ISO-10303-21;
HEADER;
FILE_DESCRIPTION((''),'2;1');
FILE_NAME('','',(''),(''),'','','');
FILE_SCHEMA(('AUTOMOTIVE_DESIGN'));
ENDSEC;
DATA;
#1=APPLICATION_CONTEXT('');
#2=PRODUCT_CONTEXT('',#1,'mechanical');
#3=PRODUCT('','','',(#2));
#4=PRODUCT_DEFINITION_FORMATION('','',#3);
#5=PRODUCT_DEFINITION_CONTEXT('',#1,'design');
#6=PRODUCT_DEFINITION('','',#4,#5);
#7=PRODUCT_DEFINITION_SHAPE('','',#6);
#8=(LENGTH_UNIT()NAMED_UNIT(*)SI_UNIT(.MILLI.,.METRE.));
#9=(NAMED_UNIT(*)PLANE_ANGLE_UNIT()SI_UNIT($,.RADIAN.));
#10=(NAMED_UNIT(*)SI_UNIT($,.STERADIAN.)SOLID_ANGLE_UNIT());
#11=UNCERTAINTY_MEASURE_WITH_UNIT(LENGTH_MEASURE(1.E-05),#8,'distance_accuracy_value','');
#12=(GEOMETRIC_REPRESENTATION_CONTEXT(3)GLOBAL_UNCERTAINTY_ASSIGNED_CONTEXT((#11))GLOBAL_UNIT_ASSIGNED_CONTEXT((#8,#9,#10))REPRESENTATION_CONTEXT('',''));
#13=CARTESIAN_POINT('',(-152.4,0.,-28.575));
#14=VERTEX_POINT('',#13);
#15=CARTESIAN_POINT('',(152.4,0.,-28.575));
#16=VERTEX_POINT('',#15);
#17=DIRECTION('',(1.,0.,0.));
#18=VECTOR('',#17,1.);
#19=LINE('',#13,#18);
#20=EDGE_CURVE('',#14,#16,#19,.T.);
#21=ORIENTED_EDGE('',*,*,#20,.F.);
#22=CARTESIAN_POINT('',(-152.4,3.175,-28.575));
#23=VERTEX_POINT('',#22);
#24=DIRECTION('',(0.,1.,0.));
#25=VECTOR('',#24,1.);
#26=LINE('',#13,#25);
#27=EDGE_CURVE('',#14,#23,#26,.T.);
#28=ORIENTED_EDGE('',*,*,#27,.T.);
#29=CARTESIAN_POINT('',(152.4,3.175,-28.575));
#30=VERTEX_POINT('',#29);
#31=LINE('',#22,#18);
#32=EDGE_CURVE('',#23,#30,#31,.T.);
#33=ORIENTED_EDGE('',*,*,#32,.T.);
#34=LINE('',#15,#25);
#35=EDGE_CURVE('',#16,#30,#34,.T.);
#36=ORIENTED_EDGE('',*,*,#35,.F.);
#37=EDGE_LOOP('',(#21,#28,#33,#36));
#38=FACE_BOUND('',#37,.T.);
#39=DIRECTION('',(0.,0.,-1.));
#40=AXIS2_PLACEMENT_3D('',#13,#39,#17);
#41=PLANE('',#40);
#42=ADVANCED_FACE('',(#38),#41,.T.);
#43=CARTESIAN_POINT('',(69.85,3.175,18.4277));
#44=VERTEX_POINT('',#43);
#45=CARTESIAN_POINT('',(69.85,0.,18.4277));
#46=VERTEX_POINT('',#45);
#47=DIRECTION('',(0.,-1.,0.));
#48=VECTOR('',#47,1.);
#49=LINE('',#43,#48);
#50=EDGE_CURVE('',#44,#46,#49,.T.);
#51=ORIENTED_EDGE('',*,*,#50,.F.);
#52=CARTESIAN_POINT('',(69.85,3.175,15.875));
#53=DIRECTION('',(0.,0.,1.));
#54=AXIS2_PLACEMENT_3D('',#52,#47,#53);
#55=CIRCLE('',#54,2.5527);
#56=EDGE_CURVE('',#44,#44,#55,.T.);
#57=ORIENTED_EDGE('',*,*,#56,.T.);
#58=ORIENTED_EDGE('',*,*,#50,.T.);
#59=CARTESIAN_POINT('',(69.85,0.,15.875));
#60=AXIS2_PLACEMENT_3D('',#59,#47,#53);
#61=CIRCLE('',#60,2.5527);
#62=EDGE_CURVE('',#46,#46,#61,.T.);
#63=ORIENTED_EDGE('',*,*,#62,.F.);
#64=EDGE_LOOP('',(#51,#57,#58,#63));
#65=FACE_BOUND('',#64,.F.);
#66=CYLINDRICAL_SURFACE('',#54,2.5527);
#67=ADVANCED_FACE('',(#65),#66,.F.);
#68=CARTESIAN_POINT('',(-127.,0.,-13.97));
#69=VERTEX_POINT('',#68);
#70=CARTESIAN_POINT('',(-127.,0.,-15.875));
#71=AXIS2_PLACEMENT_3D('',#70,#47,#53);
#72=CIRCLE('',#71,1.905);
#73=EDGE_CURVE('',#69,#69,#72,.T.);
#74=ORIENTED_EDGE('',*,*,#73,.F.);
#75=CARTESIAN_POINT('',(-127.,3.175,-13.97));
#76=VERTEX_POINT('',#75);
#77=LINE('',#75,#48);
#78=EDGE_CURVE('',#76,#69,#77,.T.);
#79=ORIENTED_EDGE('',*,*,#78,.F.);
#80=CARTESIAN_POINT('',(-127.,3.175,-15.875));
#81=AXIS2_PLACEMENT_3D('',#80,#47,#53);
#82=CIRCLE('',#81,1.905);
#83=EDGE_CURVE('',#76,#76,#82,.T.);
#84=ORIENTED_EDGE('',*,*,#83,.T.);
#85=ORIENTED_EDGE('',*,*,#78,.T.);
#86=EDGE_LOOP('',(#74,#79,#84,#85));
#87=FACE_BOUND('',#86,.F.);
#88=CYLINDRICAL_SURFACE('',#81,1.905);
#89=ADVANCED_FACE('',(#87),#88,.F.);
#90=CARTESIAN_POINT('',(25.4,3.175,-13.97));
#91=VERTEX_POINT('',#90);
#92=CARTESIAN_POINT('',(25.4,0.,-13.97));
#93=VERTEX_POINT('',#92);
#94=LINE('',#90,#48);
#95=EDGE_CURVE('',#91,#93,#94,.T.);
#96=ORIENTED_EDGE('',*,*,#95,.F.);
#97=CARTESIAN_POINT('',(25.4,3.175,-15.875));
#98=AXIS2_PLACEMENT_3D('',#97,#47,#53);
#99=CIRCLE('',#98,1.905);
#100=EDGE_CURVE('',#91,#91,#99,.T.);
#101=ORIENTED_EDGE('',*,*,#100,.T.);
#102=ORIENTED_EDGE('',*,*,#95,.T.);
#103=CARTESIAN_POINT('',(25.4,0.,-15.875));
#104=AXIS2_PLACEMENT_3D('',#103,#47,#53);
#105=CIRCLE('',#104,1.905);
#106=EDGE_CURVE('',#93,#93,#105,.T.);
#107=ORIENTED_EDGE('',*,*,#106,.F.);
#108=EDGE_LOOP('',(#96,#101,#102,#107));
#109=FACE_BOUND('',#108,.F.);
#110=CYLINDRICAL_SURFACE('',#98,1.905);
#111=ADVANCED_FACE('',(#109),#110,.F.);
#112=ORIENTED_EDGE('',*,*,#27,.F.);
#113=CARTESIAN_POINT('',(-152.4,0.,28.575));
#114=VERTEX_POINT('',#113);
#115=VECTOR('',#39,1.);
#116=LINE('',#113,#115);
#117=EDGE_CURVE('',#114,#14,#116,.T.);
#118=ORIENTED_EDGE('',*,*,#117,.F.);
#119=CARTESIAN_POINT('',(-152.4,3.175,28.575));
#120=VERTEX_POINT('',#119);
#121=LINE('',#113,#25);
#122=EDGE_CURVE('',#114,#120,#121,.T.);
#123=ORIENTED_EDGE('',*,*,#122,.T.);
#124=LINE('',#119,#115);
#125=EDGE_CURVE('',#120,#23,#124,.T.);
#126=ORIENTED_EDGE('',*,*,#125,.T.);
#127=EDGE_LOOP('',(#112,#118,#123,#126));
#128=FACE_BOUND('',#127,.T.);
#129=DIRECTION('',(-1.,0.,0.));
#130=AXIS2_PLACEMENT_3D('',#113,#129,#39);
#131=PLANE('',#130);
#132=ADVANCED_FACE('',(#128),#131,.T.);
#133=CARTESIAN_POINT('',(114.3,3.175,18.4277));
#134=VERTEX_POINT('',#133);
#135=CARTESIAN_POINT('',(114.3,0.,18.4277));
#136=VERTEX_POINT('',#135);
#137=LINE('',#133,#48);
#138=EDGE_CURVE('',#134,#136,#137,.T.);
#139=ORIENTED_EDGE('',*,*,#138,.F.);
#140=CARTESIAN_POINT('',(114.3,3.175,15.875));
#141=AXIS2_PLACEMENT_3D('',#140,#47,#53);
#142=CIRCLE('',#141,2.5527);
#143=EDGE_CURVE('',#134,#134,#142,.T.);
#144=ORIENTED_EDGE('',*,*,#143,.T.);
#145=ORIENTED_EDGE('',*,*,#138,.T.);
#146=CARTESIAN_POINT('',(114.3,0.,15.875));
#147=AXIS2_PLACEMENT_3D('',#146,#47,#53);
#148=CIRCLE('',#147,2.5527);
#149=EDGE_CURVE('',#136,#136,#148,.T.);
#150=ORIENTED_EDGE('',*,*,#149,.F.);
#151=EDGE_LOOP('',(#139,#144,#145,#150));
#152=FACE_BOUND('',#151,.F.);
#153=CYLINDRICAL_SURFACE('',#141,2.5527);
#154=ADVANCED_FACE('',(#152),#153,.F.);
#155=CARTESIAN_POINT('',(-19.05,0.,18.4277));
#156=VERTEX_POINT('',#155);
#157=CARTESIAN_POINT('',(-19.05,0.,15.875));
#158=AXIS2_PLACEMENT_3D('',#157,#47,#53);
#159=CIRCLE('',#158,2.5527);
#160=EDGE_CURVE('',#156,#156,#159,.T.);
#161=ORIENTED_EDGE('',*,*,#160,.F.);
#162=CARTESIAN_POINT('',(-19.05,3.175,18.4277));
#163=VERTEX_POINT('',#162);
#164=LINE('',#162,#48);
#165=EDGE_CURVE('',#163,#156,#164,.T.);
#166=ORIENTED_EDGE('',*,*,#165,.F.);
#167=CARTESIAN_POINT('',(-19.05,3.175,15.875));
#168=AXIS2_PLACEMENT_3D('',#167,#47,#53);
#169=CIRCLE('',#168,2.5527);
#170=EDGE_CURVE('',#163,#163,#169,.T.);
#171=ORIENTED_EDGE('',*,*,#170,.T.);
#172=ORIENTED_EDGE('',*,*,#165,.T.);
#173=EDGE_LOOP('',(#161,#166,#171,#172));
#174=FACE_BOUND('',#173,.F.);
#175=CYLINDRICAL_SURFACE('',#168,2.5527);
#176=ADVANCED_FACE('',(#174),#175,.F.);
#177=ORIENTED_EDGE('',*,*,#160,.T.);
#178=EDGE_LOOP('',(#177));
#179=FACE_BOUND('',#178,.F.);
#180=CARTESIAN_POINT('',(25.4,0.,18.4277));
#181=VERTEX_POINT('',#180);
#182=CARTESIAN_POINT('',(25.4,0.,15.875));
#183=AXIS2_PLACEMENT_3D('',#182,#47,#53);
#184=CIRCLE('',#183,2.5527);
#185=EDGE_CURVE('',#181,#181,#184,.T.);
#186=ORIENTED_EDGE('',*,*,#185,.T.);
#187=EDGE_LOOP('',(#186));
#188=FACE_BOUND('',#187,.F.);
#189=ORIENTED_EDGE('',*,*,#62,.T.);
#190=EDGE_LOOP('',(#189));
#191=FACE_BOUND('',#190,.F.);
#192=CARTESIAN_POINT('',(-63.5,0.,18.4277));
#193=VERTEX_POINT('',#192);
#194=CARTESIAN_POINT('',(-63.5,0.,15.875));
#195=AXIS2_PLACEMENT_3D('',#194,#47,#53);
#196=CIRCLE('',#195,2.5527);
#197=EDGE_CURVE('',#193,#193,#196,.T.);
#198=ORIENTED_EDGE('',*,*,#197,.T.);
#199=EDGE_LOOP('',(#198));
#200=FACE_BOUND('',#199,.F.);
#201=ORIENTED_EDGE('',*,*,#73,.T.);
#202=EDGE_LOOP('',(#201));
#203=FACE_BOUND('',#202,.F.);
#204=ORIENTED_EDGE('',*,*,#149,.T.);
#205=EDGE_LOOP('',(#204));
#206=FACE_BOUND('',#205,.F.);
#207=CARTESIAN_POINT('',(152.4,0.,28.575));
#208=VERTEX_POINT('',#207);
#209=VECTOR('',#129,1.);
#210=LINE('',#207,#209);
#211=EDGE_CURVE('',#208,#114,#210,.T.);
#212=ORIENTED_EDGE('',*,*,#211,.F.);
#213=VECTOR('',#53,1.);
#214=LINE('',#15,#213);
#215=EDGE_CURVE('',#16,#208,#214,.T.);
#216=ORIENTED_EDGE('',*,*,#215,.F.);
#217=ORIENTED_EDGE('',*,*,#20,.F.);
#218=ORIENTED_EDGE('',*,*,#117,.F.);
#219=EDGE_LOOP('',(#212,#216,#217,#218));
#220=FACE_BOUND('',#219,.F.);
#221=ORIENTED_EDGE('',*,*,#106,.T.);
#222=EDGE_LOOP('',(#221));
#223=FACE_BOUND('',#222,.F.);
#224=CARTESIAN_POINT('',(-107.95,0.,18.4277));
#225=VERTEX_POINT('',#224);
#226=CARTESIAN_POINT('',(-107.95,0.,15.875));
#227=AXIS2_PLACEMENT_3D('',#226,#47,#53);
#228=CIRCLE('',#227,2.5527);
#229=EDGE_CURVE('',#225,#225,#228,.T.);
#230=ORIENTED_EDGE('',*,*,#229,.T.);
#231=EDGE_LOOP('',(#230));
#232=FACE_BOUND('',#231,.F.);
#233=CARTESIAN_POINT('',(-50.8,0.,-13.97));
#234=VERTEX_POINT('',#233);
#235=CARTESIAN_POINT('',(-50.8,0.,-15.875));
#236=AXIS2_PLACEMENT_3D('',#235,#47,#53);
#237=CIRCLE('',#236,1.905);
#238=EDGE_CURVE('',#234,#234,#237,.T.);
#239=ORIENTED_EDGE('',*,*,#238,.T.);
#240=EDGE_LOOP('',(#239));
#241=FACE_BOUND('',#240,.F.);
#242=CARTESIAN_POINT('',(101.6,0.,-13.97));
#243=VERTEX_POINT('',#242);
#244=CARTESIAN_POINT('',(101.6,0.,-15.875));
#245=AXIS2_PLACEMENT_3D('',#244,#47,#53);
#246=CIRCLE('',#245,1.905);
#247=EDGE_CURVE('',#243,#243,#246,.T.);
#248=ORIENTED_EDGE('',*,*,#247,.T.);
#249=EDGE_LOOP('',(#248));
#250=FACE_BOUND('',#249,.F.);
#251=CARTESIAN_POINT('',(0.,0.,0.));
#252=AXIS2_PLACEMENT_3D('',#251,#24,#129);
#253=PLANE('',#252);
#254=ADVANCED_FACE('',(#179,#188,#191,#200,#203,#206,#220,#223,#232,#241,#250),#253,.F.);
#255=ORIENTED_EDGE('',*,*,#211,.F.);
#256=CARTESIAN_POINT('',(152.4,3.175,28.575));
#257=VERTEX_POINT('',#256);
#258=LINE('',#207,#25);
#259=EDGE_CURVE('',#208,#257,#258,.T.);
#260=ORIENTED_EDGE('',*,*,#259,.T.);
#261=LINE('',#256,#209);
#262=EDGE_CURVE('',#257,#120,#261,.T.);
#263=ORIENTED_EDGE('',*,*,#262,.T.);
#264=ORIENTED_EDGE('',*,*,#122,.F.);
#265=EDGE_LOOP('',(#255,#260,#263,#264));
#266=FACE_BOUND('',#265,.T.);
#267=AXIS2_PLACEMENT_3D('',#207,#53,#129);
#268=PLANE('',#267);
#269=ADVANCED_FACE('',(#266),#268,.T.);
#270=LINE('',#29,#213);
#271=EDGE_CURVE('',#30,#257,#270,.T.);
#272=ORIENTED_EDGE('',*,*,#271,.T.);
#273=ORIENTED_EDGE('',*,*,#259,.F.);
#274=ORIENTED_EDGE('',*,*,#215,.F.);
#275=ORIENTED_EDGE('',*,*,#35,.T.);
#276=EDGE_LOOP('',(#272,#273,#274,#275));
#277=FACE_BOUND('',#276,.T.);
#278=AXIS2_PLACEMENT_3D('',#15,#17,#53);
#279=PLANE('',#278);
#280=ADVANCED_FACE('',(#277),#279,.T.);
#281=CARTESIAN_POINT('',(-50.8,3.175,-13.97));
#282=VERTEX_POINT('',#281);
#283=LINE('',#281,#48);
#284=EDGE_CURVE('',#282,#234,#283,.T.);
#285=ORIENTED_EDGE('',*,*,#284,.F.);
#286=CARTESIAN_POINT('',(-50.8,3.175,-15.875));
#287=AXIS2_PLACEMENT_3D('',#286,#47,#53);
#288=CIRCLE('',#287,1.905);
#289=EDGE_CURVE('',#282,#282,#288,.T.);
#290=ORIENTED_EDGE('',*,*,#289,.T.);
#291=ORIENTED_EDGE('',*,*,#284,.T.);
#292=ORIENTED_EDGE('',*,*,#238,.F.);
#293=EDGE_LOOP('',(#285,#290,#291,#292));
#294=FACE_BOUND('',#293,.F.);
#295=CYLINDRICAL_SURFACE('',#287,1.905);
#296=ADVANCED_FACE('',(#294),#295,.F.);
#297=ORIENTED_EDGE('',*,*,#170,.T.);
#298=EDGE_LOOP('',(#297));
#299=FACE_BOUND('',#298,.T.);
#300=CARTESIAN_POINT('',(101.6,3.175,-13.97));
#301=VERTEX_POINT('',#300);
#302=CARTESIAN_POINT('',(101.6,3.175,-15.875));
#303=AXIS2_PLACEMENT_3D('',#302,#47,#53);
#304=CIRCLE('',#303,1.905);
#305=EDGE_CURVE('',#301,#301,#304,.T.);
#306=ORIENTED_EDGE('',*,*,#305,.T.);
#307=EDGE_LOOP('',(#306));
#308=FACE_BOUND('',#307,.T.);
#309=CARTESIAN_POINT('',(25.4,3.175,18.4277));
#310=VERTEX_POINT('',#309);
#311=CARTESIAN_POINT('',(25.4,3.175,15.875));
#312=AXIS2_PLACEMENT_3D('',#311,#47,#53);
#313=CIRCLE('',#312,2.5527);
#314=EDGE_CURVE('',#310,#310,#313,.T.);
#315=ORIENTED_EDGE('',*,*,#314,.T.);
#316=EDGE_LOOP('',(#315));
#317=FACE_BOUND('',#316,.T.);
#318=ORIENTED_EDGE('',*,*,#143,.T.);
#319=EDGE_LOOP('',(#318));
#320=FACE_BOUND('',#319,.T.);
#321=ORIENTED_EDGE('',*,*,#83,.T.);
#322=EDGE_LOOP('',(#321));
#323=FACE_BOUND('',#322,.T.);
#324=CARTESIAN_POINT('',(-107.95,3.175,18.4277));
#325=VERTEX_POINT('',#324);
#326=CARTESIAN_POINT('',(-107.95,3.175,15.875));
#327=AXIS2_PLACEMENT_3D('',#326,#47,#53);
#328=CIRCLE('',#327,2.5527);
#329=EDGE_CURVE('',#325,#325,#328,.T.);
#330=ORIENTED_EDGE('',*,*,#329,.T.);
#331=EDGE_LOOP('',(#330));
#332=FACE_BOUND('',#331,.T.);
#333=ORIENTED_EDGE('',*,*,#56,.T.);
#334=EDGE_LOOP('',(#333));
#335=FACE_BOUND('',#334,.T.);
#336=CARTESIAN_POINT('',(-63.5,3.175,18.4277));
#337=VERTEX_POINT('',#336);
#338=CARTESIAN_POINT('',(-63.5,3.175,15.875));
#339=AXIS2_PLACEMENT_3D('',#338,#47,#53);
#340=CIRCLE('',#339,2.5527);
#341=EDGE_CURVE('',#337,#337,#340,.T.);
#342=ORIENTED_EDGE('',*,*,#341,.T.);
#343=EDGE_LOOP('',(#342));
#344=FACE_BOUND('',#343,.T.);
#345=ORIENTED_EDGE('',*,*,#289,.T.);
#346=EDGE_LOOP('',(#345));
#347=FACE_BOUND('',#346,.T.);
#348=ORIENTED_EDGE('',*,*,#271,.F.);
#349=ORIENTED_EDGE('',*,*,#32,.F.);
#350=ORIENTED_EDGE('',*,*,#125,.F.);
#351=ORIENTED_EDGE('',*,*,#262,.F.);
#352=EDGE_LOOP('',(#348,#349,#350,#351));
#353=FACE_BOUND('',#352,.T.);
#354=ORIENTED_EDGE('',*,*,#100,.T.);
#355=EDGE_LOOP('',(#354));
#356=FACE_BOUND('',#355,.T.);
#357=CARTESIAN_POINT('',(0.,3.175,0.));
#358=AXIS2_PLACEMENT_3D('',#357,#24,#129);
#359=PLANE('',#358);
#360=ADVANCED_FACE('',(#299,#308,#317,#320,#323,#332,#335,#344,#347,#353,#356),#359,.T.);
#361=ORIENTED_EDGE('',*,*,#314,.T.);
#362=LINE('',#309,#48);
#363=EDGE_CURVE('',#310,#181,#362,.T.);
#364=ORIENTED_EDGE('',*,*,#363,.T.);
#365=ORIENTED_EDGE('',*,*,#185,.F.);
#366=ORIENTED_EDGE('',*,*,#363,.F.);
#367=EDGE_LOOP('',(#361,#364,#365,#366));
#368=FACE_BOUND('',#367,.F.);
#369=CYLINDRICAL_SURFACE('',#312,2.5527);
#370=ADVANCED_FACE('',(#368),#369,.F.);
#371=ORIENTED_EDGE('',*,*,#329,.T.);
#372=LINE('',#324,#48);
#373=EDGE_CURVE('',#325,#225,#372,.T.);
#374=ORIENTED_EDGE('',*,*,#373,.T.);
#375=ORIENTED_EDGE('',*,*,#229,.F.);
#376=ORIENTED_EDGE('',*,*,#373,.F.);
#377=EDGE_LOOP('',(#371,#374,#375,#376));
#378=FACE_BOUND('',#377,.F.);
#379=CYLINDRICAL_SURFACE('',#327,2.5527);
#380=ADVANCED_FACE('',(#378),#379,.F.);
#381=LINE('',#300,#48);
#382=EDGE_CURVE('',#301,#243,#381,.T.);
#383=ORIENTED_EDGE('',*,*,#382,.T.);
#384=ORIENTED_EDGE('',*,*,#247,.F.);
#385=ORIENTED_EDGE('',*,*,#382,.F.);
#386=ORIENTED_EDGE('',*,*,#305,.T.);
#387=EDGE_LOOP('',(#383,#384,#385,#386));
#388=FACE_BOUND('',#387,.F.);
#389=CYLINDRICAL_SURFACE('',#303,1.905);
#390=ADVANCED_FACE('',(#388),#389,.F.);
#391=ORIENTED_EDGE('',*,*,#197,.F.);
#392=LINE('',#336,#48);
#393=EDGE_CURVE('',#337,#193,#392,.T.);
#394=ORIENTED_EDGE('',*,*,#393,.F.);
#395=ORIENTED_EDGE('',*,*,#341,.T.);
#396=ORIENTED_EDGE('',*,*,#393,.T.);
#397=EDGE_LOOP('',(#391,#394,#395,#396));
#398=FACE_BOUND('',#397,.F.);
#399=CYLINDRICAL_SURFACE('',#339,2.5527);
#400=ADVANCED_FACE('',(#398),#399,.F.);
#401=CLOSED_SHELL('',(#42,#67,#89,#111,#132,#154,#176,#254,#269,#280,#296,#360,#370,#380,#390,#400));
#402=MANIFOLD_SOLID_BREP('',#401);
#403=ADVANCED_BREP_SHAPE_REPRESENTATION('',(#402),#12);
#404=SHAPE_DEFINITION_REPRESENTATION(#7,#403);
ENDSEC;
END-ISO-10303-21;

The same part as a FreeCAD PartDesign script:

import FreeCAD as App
import Part
import Sketcher

V = App.Vector
Q = App.Units.Quantity


def add_polygon(sketch, points):
    """Adds a closed chain of lines whose ends are joined by coincident constraints."""
    first, n = sketch.GeometryCount, len(points)
    for a, b in zip(points, points[1:] + points[:1]):
        sketch.addGeometry(Part.LineSegment(App.Vector(*a, 0), App.Vector(*b, 0)), False)
    for i in range(n):
        sketch.addConstraint(Sketcher.Constraint("Coincident", first + i, 2, first + (i + 1) % n, 1))

doc = App.newDocument("Part")
body = doc.addObject("PartDesign::Body", "Body")

sketch1 = body.newObject("Sketcher::SketchObject", "Sketch")
sketch1.AttachmentSupport = (doc.getObject("XZ_Plane"), [""])
sketch1.MapMode = "FlatFace"
add_polygon(sketch1, [(-152, 29), (152, 29), (152, -29), (-152, -29)])
sketch1.addConstraint([
    Sketcher.Constraint("Horizontal", 0),
    Sketcher.Constraint("Vertical", 1),
    Sketcher.Constraint("Horizontal", 2),
    Sketcher.Constraint("Vertical", 3),
    Sketcher.Constraint("Symmetric", 0, 2, 2, 2, -1, 1),
    Sketcher.Constraint("DistanceX", 0, 1, 0, 2, Q("12 in")),
    Sketcher.Constraint("DistanceY", 1, 2, 1, 1, Q("2.25 in")),
])
pad1 = body.newObject("PartDesign::Pad", "Pad")
pad1.Profile = sketch1
pad1.Length = Q("0.125 in")
pad1.Reversed = True

sketch2 = body.newObject("Sketcher::SketchObject", "Sketch001")
sketch2.AttachmentSupport = (doc.getObject("XZ_Plane"), [""])
sketch2.MapMode = "FlatFace"
sketch2.AttachmentOffset = App.Placement(V(0, 0, -0.125 * 25.4), App.Rotation())
sketch2.addGeometry([
    Part.Circle(V(-108, 15.9, 0), V(0, 0, 1), 2.6),
    Part.Circle(V(-63.5, 15.9, 0), V(0, 0, 1), 2.6),
    Part.Circle(V(-19.1, 15.9, 0), V(0, 0, 1), 2.6),
    Part.Circle(V(25.4, 15.9, 0), V(0, 0, 1), 2.6),
    Part.Circle(V(69.8, 15.9, 0), V(0, 0, 1), 2.6),
    Part.Circle(V(114.3, 15.9, 0), V(0, 0, 1), 2.6),
], False)
sketch2.addConstraint([
    Sketcher.Constraint("Equal", 0, 1),
    Sketcher.Constraint("Equal", 1, 2),
    Sketcher.Constraint("Equal", 2, 3),
    Sketcher.Constraint("Equal", 3, 4),
    Sketcher.Constraint("Equal", 4, 5),
    Sketcher.Constraint("Horizontal", 0, 3, 1, 3),
    Sketcher.Constraint("Horizontal", 1, 3, 2, 3),
    Sketcher.Constraint("Horizontal", 2, 3, 3, 3),
    Sketcher.Constraint("Horizontal", 3, 3, 4, 3),
    Sketcher.Constraint("Horizontal", 4, 3, 5, 3),
    Sketcher.Constraint("Diameter", 0, Q("0.201 in")),
    Sketcher.Constraint("DistanceX", -1, 1, 3, 3, Q("1 in")),
    Sketcher.Constraint("DistanceX", 0, 3, 4, 3, Q("7 in")),
    Sketcher.Constraint("DistanceX", 1, 3, 5, 3, Q("7 in")),
    Sketcher.Constraint("DistanceX", 1, 3, -1, 1, Q("2.5 in")),
    Sketcher.Constraint("DistanceX", 0, 3, 2, 3, Q("3.5 in")),
    Sketcher.Constraint("DistanceX", 0, 3, -1, 1, Q("4.25 in")),
    Sketcher.Constraint("DistanceY", -1, 1, 0, 3, Q("0.625 in")),
])
doc.recompute()
hole = body.newObject("PartDesign::Hole", "Hole")
hole.Profile = sketch2
hole.ThreadType = "None"
hole.Diameter = Q("0.201 in")
hole.DepthType = "ThroughAll"
hole.Reversed = True

sketch3 = body.newObject("Sketcher::SketchObject", "Sketch002")
sketch3.AttachmentSupport = (doc.getObject("XZ_Plane"), [""])
sketch3.MapMode = "FlatFace"
sketch3.AttachmentOffset = App.Placement(V(0, 0, -0.125 * 25.4), App.Rotation())
sketch3.addGeometry([
    Part.Circle(V(-127, -15.9, 0), V(0, 0, 1), 1.9),
    Part.Circle(V(-50.8, -15.9, 0), V(0, 0, 1), 1.9),
    Part.Circle(V(25.4, -15.9, 0), V(0, 0, 1), 1.9),
    Part.Circle(V(101.6, -15.9, 0), V(0, 0, 1), 1.9),
], False)
sketch3.addConstraint([
    Sketcher.Constraint("Equal", 0, 1),
    Sketcher.Constraint("Equal", 1, 2),
    Sketcher.Constraint("Equal", 2, 3),
    Sketcher.Constraint("Horizontal", 0, 3, 1, 3),
    Sketcher.Constraint("Horizontal", 1, 3, 2, 3),
    Sketcher.Constraint("Horizontal", 2, 3, 3, 3),
    Sketcher.Constraint("Diameter", 0, Q("0.15 in")),
    Sketcher.Constraint("DistanceX", 0, 3, -1, 1, Q("5 in")),
    Sketcher.Constraint("DistanceX", 1, 3, -1, 1, Q("2 in")),
    Sketcher.Constraint("DistanceX", -1, 1, 2, 3, Q("1 in")),
    Sketcher.Constraint("DistanceX", -1, 1, 3, 3, Q("4 in")),
    Sketcher.Constraint("DistanceY", 0, 3, -1, 1, Q("0.625 in")),
])
doc.recompute()
hole2 = body.newObject("PartDesign::Hole", "Hole001")
hole2.Profile = sketch3
hole2.ThreadType = "None"
hole2.Diameter = Q("0.15 in")
hole2.DepthType = "ThroughAll"
hole2.Reversed = True

doc.recompute()
